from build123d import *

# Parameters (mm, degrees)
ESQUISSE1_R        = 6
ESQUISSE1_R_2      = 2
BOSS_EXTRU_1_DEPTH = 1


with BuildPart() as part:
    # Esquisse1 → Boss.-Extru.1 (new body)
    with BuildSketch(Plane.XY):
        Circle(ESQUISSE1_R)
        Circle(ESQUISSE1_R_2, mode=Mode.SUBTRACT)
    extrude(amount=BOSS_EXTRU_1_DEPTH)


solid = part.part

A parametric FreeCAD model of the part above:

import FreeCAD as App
import Part
import Sketcher

V = App.Vector

doc = App.newDocument("Part")
body = doc.addObject("PartDesign::Body", "Body")

sketch1 = doc.addObject("Sketcher::SketchObject", "Sketch")
body.addObject(sketch1)
sketch1.AttachmentSupport = (doc.XY_Plane, [""])
sketch1.MapMode = "FlatFace"
sketch1.addGeometry(Part.Circle(V(0, 0, 0), V(0, 0, 1), 6), False)
sketch1.addGeometry(Part.Circle(V(0, 0, 0), V(0, 0, 1), 2), False)
sketch1.addConstraint(Sketcher.Constraint("Coincident", 0, 3, -1, 1))
sketch1.addConstraint(Sketcher.Constraint("Coincident", 1, 3, -1, 1))
sketch1.addConstraint(Sketcher.Constraint("Diameter", 0, 12.0))
sketch1.addConstraint(Sketcher.Constraint("Diameter", 1, 4.0))
pad1 = doc.addObject("PartDesign::Pad", "Pad")
body.addObject(pad1)
pad1.Profile = sketch1
pad1.Length = 1

doc.recompute()
